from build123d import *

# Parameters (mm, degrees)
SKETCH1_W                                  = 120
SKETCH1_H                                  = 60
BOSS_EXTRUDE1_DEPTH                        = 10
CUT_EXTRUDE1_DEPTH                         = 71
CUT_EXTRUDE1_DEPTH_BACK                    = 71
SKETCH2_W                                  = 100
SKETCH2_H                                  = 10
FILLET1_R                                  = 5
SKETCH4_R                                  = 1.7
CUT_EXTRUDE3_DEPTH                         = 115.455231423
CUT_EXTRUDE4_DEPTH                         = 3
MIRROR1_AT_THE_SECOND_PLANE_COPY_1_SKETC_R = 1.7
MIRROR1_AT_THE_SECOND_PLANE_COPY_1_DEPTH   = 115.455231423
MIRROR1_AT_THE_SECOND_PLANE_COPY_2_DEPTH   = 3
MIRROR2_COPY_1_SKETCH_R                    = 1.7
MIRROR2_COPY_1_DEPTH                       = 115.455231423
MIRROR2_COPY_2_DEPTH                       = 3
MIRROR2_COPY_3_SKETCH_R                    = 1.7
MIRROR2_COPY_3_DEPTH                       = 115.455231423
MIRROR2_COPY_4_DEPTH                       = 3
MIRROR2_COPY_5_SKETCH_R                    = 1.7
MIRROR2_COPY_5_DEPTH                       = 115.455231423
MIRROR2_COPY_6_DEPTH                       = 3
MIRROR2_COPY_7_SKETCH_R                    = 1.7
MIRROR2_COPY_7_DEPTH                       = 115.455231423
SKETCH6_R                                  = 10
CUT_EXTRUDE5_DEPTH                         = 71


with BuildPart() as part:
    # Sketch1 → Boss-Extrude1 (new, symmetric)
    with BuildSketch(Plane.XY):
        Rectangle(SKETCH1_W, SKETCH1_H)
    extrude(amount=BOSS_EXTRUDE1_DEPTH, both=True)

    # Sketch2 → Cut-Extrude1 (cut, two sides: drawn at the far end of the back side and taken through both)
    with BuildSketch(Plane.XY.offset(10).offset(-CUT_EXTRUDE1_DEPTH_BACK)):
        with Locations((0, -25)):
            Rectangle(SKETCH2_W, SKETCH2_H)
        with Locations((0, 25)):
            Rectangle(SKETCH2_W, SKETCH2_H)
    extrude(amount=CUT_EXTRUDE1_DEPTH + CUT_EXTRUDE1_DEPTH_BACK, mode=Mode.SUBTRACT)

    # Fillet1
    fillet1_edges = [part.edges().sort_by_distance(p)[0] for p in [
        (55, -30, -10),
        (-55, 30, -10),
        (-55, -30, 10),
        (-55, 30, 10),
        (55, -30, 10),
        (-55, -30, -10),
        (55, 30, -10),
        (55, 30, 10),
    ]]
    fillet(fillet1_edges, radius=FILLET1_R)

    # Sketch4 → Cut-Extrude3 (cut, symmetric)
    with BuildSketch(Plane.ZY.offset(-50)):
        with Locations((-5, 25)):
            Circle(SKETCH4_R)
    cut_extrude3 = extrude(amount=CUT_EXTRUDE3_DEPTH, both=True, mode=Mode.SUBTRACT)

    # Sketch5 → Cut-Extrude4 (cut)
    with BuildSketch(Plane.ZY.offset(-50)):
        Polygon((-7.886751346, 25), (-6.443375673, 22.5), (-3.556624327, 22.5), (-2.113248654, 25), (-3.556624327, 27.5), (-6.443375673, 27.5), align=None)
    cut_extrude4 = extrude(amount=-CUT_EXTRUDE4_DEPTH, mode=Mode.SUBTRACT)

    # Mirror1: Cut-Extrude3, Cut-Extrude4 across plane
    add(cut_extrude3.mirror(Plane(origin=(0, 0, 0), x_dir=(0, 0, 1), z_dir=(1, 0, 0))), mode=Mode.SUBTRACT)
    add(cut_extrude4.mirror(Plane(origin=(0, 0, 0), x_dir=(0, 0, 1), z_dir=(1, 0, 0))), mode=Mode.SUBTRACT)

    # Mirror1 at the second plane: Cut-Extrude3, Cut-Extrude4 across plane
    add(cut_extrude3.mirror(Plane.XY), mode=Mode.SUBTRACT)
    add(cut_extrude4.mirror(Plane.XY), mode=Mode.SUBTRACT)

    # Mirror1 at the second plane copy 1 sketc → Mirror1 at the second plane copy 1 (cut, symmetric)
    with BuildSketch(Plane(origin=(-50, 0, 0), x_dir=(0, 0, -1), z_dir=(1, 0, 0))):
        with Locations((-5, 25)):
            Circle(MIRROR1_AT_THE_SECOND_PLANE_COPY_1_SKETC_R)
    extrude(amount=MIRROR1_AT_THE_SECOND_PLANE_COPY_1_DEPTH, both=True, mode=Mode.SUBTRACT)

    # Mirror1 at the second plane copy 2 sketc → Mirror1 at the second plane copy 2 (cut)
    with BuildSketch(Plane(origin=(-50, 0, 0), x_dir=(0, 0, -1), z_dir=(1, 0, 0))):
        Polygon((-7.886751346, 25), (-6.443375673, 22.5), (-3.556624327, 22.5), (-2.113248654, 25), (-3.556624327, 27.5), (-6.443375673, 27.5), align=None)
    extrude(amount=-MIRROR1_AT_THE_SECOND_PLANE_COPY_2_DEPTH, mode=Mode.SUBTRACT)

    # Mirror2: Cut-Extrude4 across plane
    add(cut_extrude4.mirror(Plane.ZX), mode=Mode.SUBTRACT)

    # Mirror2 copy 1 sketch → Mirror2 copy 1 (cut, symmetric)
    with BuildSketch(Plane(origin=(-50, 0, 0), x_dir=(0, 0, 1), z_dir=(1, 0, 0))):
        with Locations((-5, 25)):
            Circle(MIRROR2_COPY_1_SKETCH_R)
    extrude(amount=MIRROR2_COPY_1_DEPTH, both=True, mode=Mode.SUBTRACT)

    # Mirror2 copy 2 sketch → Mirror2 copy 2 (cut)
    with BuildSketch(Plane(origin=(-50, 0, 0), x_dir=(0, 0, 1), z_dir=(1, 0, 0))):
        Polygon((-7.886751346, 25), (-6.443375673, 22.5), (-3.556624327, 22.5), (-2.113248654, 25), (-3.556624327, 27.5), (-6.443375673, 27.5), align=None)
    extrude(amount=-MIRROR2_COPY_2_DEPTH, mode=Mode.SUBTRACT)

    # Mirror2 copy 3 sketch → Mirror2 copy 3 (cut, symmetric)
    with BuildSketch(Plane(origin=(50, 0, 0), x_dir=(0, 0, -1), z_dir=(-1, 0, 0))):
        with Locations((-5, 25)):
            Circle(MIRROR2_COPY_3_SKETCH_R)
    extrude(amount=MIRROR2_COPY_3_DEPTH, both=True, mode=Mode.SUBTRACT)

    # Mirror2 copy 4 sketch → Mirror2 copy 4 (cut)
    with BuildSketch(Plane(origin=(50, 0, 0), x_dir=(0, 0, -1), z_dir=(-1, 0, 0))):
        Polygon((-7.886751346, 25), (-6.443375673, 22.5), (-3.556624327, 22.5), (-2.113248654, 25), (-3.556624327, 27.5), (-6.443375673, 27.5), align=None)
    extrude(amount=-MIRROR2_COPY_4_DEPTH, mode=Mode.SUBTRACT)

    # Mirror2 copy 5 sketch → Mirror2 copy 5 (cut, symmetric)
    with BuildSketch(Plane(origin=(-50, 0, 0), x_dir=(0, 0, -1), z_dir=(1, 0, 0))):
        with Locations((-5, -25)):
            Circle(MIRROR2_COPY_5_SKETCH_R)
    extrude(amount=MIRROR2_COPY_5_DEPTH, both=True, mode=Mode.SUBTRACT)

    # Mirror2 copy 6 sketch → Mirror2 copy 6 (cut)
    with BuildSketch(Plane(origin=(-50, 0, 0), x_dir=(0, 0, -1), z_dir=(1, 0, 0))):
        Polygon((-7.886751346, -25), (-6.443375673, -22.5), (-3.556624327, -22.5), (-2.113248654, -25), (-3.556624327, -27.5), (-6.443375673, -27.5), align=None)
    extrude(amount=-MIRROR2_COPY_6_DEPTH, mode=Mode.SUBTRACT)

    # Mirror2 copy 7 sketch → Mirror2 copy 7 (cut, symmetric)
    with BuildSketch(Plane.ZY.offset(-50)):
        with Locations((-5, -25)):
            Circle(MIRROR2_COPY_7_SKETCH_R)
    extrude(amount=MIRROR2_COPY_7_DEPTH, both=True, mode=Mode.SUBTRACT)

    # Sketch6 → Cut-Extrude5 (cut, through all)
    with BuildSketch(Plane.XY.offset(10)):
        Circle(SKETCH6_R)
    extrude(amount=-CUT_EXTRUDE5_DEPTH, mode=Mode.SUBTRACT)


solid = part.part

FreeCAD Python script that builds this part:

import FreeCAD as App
import Part
import Sketcher
Q = App.Units.Quantity


def edges_at(feature, points):
    """Names of the edges that pass closest to the given points."""
    edges = feature.Shape.Edges
    near = lambda p: min(range(len(edges)), key=lambda i: edges[i].distToShape(Part.Vertex(*p))[0])
    return sorted({f"Edge{near(p) + 1}" for p in points})


def add_polygon(sketch, points):
    """Adds a closed chain of lines whose ends are joined by coincident constraints."""
    first, n = sketch.GeometryCount, len(points)
    for a, b in zip(points, points[1:] + points[:1]):
        sketch.addGeometry(Part.LineSegment(App.Vector(*a, 0), App.Vector(*b, 0)), False)
    for i in range(n):
        sketch.addConstraint(Sketcher.Constraint("Coincident", first + i, 2, first + (i + 1) % n, 1))

doc = App.newDocument("Part")
params = doc.addObject("Spreadsheet::Sheet", "Params")
for row, (alias, value) in enumerate([
    ("sketch1_width", "120 mm"),
    ("sketch1_height", "60 mm"),
    ("pad1_length", "20 mm"),
    ("sketch2_width", "100 mm"),
    ("sketch2_height", "10 mm"),
    ("fillet_radius", "5 mm"),
    ("sketch3_diameter", "3.4 mm"),
    ("pocket2_length", "230.910463 mm"),
    ("pocket3_length", "3 mm"),
    ("sketch5_diameter", "3.4 mm"),
    ("pocket4_length", "230.910463 mm"),
    ("pocket5_length", "3 mm"),
    ("sketch7_diameter", "3.4 mm"),
    ("pocket6_length", "230.910463 mm"),
    ("pocket7_length", "3 mm"),
    ("sketch9_diameter", "3.4 mm"),
    ("pocket8_length", "230.910463 mm"),
    ("pocket9_length", "3 mm"),
    ("sketch11_diameter", "3.4 mm"),
    ("pocket10_length", "230.910463 mm"),
    ("pocket11_length", "3 mm"),
    ("sketch13_diameter", "3.4 mm"),
    ("pocket12_length", "230.910463 mm"),
    ("sketch14_diameter", "20 mm"),
], start=1):
    params.set(f"A{row}", alias)
    params.set(f"B{row}", "=" + value)
    params.setAlias(f"B{row}", alias)

body = doc.addObject("PartDesign::Body", "Body")

# Sketch on XY plane
sketch1 = doc.addObject("Sketcher::SketchObject", "Sketch")
body.addObject(sketch1)
sketch1.AttachmentSupport = (doc.XY_Plane, [""])
sketch1.MapMode = "FlatFace"
add_polygon(sketch1, [(-60, 30), (-60, -30), (60, -30), (60, 30)])  # lines 0-3
sketch1.addConstraint([
    Sketcher.Constraint("Vertical", 0),
    Sketcher.Constraint("Horizontal", 1),
    Sketcher.Constraint("Vertical", 2),
    Sketcher.Constraint("Horizontal", 3),
    Sketcher.Constraint("Symmetric", 0, 2, 2, 2, -1, 1),
    Sketcher.Constraint("DistanceX", 1, 1, 1, 2, 120.0),
    Sketcher.Constraint("DistanceY", 0, 2, 0, 1, 60.0),
])
sketch1.setExpression("Constraints[9]", "Params.sketch1_width")
sketch1.setExpression("Constraints[10]", "Params.sketch1_height")
pad1 = doc.addObject("PartDesign::Pad", "Pad")
body.addObject(pad1)
pad1.Profile = sketch1
pad1.setExpression("Length", "Params.pad1_length")
pad1.Midplane = True

# Sketch on XY plane
sketch2 = doc.addObject("Sketcher::SketchObject", "Sketch001")
body.addObject(sketch2)
sketch2.AttachmentSupport = (doc.XY_Plane, [""])
sketch2.MapMode = "FlatFace"
sketch2.AttachmentOffset = App.Placement(App.Vector(0, 0, 10), App.Rotation())
add_polygon(sketch2, [(-50, -20), (-50, -30), (50, -30), (50, -20)])  # lines 0-3
add_polygon(sketch2, [(-50, 30), (-50, 20), (50, 20), (50, 30)])  # lines 4-7
sketch2.addConstraint([
    Sketcher.Constraint("Vertical", 0),
    Sketcher.Constraint("Horizontal", 1),
    Sketcher.Constraint("Vertical", 2),
    Sketcher.Constraint("Horizontal", 3),
    Sketcher.Constraint("Vertical", 4),
    Sketcher.Constraint("Horizontal", 5),
    Sketcher.Constraint("Vertical", 6),
    Sketcher.Constraint("Horizontal", 7),
    Sketcher.Constraint("Symmetric", 2, 2, 4, 2, -1, 1),
    Sketcher.Constraint("Symmetric", 0, 2, 6, 2, -1, 1),
    Sketcher.Constraint("Vertical", 3, 2, 4, 2),
    Sketcher.Constraint("DistanceX", 1, 1, 1, 2, 100.0),
    Sketcher.Constraint("DistanceY", 0, 2, 0, 1, 10.0),
    Sketcher.Constraint("DistanceY", 0, 2, -1, 1, 30.0),
])
sketch2.setExpression("Constraints[19]", "Params.sketch2_width")
sketch2.setExpression("Constraints[20]", "Params.sketch2_height")
pocket1 = doc.addObject("PartDesign::Pocket", "Pocket")
body.addObject(pocket1)
pocket1.Profile = sketch2
pocket1.Type = "ThroughAll"
pocket1.Midplane = True
doc.recompute()

fillet = doc.addObject("PartDesign::Fillet", "Fillet")
body.addObject(fillet)
fillet.Base = (pocket1, edges_at(pocket1, [
    (55, -30, -10),
    (-55, 30, -10),
    (-55, -30, 10),
    (-55, 30, 10),
    (55, -30, 10),
    (-55, -30, -10),
    (55, 30, -10),
    (55, 30, 10),
]))
fillet.setExpression("Radius", "Params.fillet_radius")

# Sketch on YZ plane
sketch3 = doc.addObject("Sketcher::SketchObject", "Sketch002")
body.addObject(sketch3)
sketch3.AttachmentSupport = (doc.YZ_Plane, [""])
sketch3.MapMode = "FlatFace"
sketch3.AttachmentOffset = App.Placement(App.Vector(0, 0, 50), App.Rotation())
sketch3.addGeometry(Part.Circle(App.Vector(25, -5, 0), App.Vector(0, 0, 1), 1.7), False)
sketch3.addConstraint([
    Sketcher.Constraint("Diameter", 0, 3.4),
    Sketcher.Constraint("DistanceX", -1, 1, 0, 3, 25.0),
    Sketcher.Constraint("DistanceY", 0, 3, -1, 1, 5.0),
])
sketch3.setExpression("Constraints[0]", "Params.sketch3_diameter")
pocket2 = doc.addObject("PartDesign::Pocket", "Pocket001")
body.addObject(pocket2)
pocket2.Profile = sketch3
pocket2.setExpression("Length", "Params.pocket2_length")
pocket2.Midplane = True

# Sketch on YZ plane
sketch4 = doc.addObject("Sketcher::SketchObject", "Sketch003")
body.addObject(sketch4)
sketch4.AttachmentSupport = (doc.YZ_Plane, [""])
sketch4.MapMode = "FlatFace"
sketch4.AttachmentOffset = App.Placement(App.Vector(0, 0, 50), App.Rotation())
add_polygon(sketch4, [(25, -7.9), (22.5, -6.4), (22.5, -3.6), (25, -2.1), (27.5, -3.6), (27.5, -6.4)])  # lines 0-5
sketch4.addConstraint([
    Sketcher.Constraint("Vertical", 1),
    Sketcher.Constraint("Vertical", 4),
    Sketcher.Constraint("Parallel", 0, 3),
    Sketcher.Constraint("Parallel", 2, 5),
    Sketcher.Constraint("Horizontal", 1, 2, 3, 2),
    Sketcher.Constraint("Horizontal", 0, 2, 4, 2),
    Sketcher.Constraint("Vertical", 2, 2, 5, 2),
    Sketcher.Constraint("Angle", 0, Q("150 deg")),
    Sketcher.Constraint("DistanceX", -1, 1, 2, 2, 25.0),
    Sketcher.Constraint("DistanceX", 1, 2, 3, 2, 5.0),
    Sketcher.Constraint("DistanceY", 1, 1, 1, 2, 2.886751),
    Sketcher.Constraint("DistanceY", 2, 2, -1, 1, 2.113249),
])
pocket3 = doc.addObject("PartDesign::Pocket", "Pocket002")
body.addObject(pocket3)
pocket3.Profile = sketch4
pocket3.setExpression("Length", "Params.pocket3_length")
pocket3.Reversed = True
doc.recompute()

mirrored = doc.addObject("PartDesign::Mirrored", "Mirrored")
body.addObject(mirrored)
mirrored.Originals = [pocket2, pocket3]
mirrored.MirrorPlane = (doc.YZ_Plane, [""])
body.Tip = mirrored
doc.recompute()

mirrored2 = doc.addObject("PartDesign::Mirrored", "Mirrored001")
body.addObject(mirrored2)
mirrored2.Originals = [pocket2, pocket3]
mirrored2.MirrorPlane = (doc.XY_Plane, [""])
body.Tip = mirrored2

# Sketch on YZ plane
sketch5 = doc.addObject("Sketcher::SketchObject", "Sketch004")
body.addObject(sketch5)
sketch5.AttachmentSupport = (doc.YZ_Plane, [""])
sketch5.MapMode = "FlatFace"
sketch5.AttachmentOffset = App.Placement(App.Vector(0, 0, -50), App.Rotation())
sketch5.addGeometry(Part.Circle(App.Vector(25, 5, 0), App.Vector(0, 0, 1), 1.7), False)
sketch5.addConstraint([
    Sketcher.Constraint("Diameter", 0, 3.4),
    Sketcher.Constraint("DistanceX", -1, 1, 0, 3, 25.0),
    Sketcher.Constraint("DistanceY", -1, 1, 0, 3, 5.0),
])
sketch5.setExpression("Constraints[0]", "Params.sketch5_diameter")
pocket4 = doc.addObject("PartDesign::Pocket", "Pocket003")
body.addObject(pocket4)
pocket4.Profile = sketch5
pocket4.setExpression("Length", "Params.pocket4_length")
pocket4.Midplane = True

# Sketch on YZ plane
sketch6 = doc.addObject("Sketcher::SketchObject", "Sketch005")
body.addObject(sketch6)
sketch6.AttachmentSupport = (doc.YZ_Plane, [""])
sketch6.MapMode = "FlatFace"
sketch6.AttachmentOffset = App.Placement(App.Vector(0, 0, -50), App.Rotation())
add_polygon(sketch6, [(25, 7.9), (22.5, 6.4), (22.5, 3.6), (25, 2.1), (27.5, 3.6), (27.5, 6.4)])  # lines 0-5
sketch6.addConstraint([
    Sketcher.Constraint("Vertical", 1),
    Sketcher.Constraint("Vertical", 4),
    Sketcher.Constraint("Parallel", 0, 3),
    Sketcher.Constraint("Parallel", 2, 5),
    Sketcher.Constraint("Horizontal", 1, 2, 3, 2),
    Sketcher.Constraint("Horizontal", 0, 2, 4, 2),
    Sketcher.Constraint("Vertical", 2, 2, 5, 2),
    Sketcher.Constraint("Angle", 0, Q("-150 deg")),
    Sketcher.Constraint("DistanceX", -1, 1, 2, 2, 25.0),
    Sketcher.Constraint("DistanceX", 1, 2, 3, 2, 5.0),
    Sketcher.Constraint("DistanceY", 1, 2, 1, 1, 2.886751),
    Sketcher.Constraint("DistanceY", -1, 1, 2, 2, 2.113249),
])
pocket5 = doc.addObject("PartDesign::Pocket", "Pocket004")
body.addObject(pocket5)
pocket5.Profile = sketch6
pocket5.setExpression("Length", "Params.pocket5_length")
doc.recompute()

mirrored3 = doc.addObject("PartDesign::Mirrored", "Mirrored002")
body.addObject(mirrored3)
mirrored3.Originals = [pocket3]
mirrored3.MirrorPlane = (doc.XZ_Plane, [""])
body.Tip = mirrored3

# Sketch on YZ plane
sketch7 = doc.addObject("Sketcher::SketchObject", "Sketch006")
body.addObject(sketch7)
sketch7.AttachmentSupport = (doc.YZ_Plane, [""])
sketch7.MapMode = "FlatFace"
sketch7.AttachmentOffset = App.Placement(App.Vector(0, 0, -50), App.Rotation())
sketch7.addGeometry(Part.Circle(App.Vector(-25, -5, 0), App.Vector(0, 0, 1), 1.7), False)
sketch7.addConstraint([
    Sketcher.Constraint("Diameter", 0, 3.4),
    Sketcher.Constraint("DistanceX", 0, 3, -1, 1, 25.0),
    Sketcher.Constraint("DistanceY", 0, 3, -1, 1, 5.0),
])
sketch7.setExpression("Constraints[0]", "Params.sketch7_diameter")
pocket6 = doc.addObject("PartDesign::Pocket", "Pocket005")
body.addObject(pocket6)
pocket6.Profile = sketch7
pocket6.setExpression("Length", "Params.pocket6_length")
pocket6.Midplane = True

# Sketch on YZ plane
sketch8 = doc.addObject("Sketcher::SketchObject", "Sketch007")
body.addObject(sketch8)
sketch8.AttachmentSupport = (doc.YZ_Plane, [""])
sketch8.MapMode = "FlatFace"
sketch8.AttachmentOffset = App.Placement(App.Vector(0, 0, -50), App.Rotation())
add_polygon(sketch8, [(-25, -7.9), (-22.5, -6.4), (-22.5, -3.6), (-25, -2.1), (-27.5, -3.6), (-27.5, -6.4)])  # lines 0-5
sketch8.addConstraint([
    Sketcher.Constraint("Vertical", 1),
    Sketcher.Constraint("Vertical", 4),
    Sketcher.Constraint("Parallel", 0, 3),
    Sketcher.Constraint("Parallel", 2, 5),
    Sketcher.Constraint("Horizontal", 1, 2, 3, 2),
    Sketcher.Constraint("Horizontal", 0, 2, 4, 2),
    Sketcher.Constraint("Vertical", 2, 2, 5, 2),
    Sketcher.Constraint("Angle", 0, Q("30 deg")),
    Sketcher.Constraint("DistanceX", 2, 2, -1, 1, 25.0),
    Sketcher.Constraint("DistanceX", 3, 2, 1, 2, 5.0),
    Sketcher.Constraint("DistanceY", 1, 1, 1, 2, 2.886751),
    Sketcher.Constraint("DistanceY", 2, 2, -1, 1, 2.113249),
])
pocket7 = doc.addObject("PartDesign::Pocket", "Pocket006")
body.addObject(pocket7)
pocket7.Profile = sketch8
pocket7.setExpression("Length", "Params.pocket7_length")

# Sketch on YZ plane
sketch9 = doc.addObject("Sketcher::SketchObject", "Sketch008")
body.addObject(sketch9)
sketch9.AttachmentSupport = (doc.YZ_Plane, [""])
sketch9.MapMode = "FlatFace"
sketch9.AttachmentOffset = App.Placement(App.Vector(0, 0, 50), App.Rotation())
sketch9.addGeometry(Part.Circle(App.Vector(-25, 5, 0), App.Vector(0, 0, 1), 1.7), False)
sketch9.addConstraint([
    Sketcher.Constraint("Diameter", 0, 3.4),
    Sketcher.Constraint("DistanceX", 0, 3, -1, 1, 25.0),
    Sketcher.Constraint("DistanceY", -1, 1, 0, 3, 5.0),
])
sketch9.setExpression("Constraints[0]", "Params.sketch9_diameter")
pocket8 = doc.addObject("PartDesign::Pocket", "Pocket007")
body.addObject(pocket8)
pocket8.Profile = sketch9
pocket8.setExpression("Length", "Params.pocket8_length")
pocket8.Midplane = True

# Sketch on YZ plane
sketch10 = doc.addObject("Sketcher::SketchObject", "Sketch009")
body.addObject(sketch10)
sketch10.AttachmentSupport = (doc.YZ_Plane, [""])
sketch10.MapMode = "FlatFace"
sketch10.AttachmentOffset = App.Placement(App.Vector(0, 0, 50), App.Rotation())
add_polygon(sketch10, [(-25, 7.9), (-22.5, 6.4), (-22.5, 3.6), (-25, 2.1), (-27.5, 3.6), (-27.5, 6.4)])  # lines 0-5
sketch10.addConstraint([
    Sketcher.Constraint("Vertical", 1),
    Sketcher.Constraint("Vertical", 4),
    Sketcher.Constraint("Parallel", 0, 3),
    Sketcher.Constraint("Parallel", 2, 5),
    Sketcher.Constraint("Horizontal", 1, 2, 3, 2),
    Sketcher.Constraint("Horizontal", 0, 2, 4, 2),
    Sketcher.Constraint("Vertical", 2, 2, 5, 2),
    Sketcher.Constraint("Angle", 0, Q("-30 deg")),
    Sketcher.Constraint("DistanceX", 2, 2, -1, 1, 25.0),
    Sketcher.Constraint("DistanceX", 3, 2, 1, 2, 5.0),
    Sketcher.Constraint("DistanceY", 1, 2, 1, 1, 2.886751),
    Sketcher.Constraint("DistanceY", -1, 1, 2, 2, 2.113249),
])
pocket9 = doc.addObject("PartDesign::Pocket", "Pocket008")
body.addObject(pocket9)
pocket9.Profile = sketch10
pocket9.setExpression("Length", "Params.pocket9_length")
pocket9.Reversed = True

# Sketch on YZ plane
sketch11 = doc.addObject("Sketcher::SketchObject", "Sketch010")
body.addObject(sketch11)
sketch11.AttachmentSupport = (doc.YZ_Plane, [""])
sketch11.MapMode = "FlatFace"
sketch11.AttachmentOffset = App.Placement(App.Vector(0, 0, -50), App.Rotation())
sketch11.addGeometry(Part.Circle(App.Vector(-25, 5, 0), App.Vector(0, 0, 1), 1.7), False)
sketch11.addConstraint([
    Sketcher.Constraint("Diameter", 0, 3.4),
    Sketcher.Constraint("DistanceX", 0, 3, -1, 1, 25.0),
    Sketcher.Constraint("DistanceY", -1, 1, 0, 3, 5.0),
])
sketch11.setExpression("Constraints[0]", "Params.sketch11_diameter")
pocket10 = doc.addObject("PartDesign::Pocket", "Pocket009")
body.addObject(pocket10)
pocket10.Profile = sketch11
pocket10.setExpression("Length", "Params.pocket10_length")
pocket10.Midplane = True

# Sketch on YZ plane
sketch12 = doc.addObject("Sketcher::SketchObject", "Sketch011")
body.addObject(sketch12)
sketch12.AttachmentSupport = (doc.YZ_Plane, [""])
sketch12.MapMode = "FlatFace"
sketch12.AttachmentOffset = App.Placement(App.Vector(0, 0, -50), App.Rotation())
add_polygon(sketch12, [(-22.5, 6.4), (-25, 7.9), (-27.5, 6.4), (-27.5, 3.6), (-25, 2.1), (-22.5, 3.6)])  # lines 0-5
sketch12.addConstraint([
    Sketcher.Constraint("Vertical", 2),
    Sketcher.Constraint("Vertical", 5),
    Sketcher.Constraint("Parallel", 0, 3),
    Sketcher.Constraint("Parallel", 1, 4),
    Sketcher.Constraint("Horizontal", 2, 2, 4, 2),
    Sketcher.Constraint("Horizontal", 1, 2, 5, 2),
    Sketcher.Constraint("Vertical", 0, 2, 3, 2),
    Sketcher.Constraint("Angle", 0, Q("150 deg")),
    Sketcher.Constraint("DistanceX", 0, 2, -1, 1, 25.0),
    Sketcher.Constraint("DistanceX", 2, 2, 4, 2, 5.0),
    Sketcher.Constraint("DistanceY", 2, 2, 2, 1, 2.886751),
    Sketcher.Constraint("DistanceY", -1, 1, 0, 2, 7.886751),
])
pocket11 = doc.addObject("PartDesign::Pocket", "Pocket010")
body.addObject(pocket11)
pocket11.Profile = sketch12
pocket11.setExpression("Length", "Params.pocket11_length")

# Sketch on YZ plane
sketch13 = doc.addObject("Sketcher::SketchObject", "Sketch012")
body.addObject(sketch13)
sketch13.AttachmentSupport = (doc.YZ_Plane, [""])
sketch13.MapMode = "FlatFace"
sketch13.AttachmentOffset = App.Placement(App.Vector(0, 0, 50), App.Rotation())
sketch13.addGeometry(Part.Circle(App.Vector(-25, -5, 0), App.Vector(0, 0, 1), 1.7), False)
sketch13.addConstraint([
    Sketcher.Constraint("Diameter", 0, 3.4),
    Sketcher.Constraint("DistanceX", 0, 3, -1, 1, 25.0),
    Sketcher.Constraint("DistanceY", 0, 3, -1, 1, 5.0),
])
sketch13.setExpression("Constraints[0]", "Params.sketch13_diameter")
pocket12 = doc.addObject("PartDesign::Pocket", "Pocket011")
body.addObject(pocket12)
pocket12.Profile = sketch13
pocket12.setExpression("Length", "Params.pocket12_length")
pocket12.Midplane = True

# Sketch on XY plane
sketch14 = doc.addObject("Sketcher::SketchObject", "Sketch013")
body.addObject(sketch14)
sketch14.AttachmentSupport = (doc.XY_Plane, [""])
sketch14.MapMode = "FlatFace"
sketch14.AttachmentOffset = App.Placement(App.Vector(0, 0, 10), App.Rotation())
sketch14.addGeometry(Part.Circle(App.Vector(0, 0, 0), App.Vector(0, 0, 1), 10), False)
sketch14.addConstraint([
    Sketcher.Constraint("Coincident", 0, 3, -1, 1),
    Sketcher.Constraint("Diameter", 0, 20.0),
])
sketch14.setExpression("Constraints[1]", "Params.sketch14_diameter")
pocket13 = doc.addObject("PartDesign::Pocket", "Pocket012")
body.addObject(pocket13)
pocket13.Profile = sketch14
pocket13.Type = "ThroughAll"

doc.recompute()
